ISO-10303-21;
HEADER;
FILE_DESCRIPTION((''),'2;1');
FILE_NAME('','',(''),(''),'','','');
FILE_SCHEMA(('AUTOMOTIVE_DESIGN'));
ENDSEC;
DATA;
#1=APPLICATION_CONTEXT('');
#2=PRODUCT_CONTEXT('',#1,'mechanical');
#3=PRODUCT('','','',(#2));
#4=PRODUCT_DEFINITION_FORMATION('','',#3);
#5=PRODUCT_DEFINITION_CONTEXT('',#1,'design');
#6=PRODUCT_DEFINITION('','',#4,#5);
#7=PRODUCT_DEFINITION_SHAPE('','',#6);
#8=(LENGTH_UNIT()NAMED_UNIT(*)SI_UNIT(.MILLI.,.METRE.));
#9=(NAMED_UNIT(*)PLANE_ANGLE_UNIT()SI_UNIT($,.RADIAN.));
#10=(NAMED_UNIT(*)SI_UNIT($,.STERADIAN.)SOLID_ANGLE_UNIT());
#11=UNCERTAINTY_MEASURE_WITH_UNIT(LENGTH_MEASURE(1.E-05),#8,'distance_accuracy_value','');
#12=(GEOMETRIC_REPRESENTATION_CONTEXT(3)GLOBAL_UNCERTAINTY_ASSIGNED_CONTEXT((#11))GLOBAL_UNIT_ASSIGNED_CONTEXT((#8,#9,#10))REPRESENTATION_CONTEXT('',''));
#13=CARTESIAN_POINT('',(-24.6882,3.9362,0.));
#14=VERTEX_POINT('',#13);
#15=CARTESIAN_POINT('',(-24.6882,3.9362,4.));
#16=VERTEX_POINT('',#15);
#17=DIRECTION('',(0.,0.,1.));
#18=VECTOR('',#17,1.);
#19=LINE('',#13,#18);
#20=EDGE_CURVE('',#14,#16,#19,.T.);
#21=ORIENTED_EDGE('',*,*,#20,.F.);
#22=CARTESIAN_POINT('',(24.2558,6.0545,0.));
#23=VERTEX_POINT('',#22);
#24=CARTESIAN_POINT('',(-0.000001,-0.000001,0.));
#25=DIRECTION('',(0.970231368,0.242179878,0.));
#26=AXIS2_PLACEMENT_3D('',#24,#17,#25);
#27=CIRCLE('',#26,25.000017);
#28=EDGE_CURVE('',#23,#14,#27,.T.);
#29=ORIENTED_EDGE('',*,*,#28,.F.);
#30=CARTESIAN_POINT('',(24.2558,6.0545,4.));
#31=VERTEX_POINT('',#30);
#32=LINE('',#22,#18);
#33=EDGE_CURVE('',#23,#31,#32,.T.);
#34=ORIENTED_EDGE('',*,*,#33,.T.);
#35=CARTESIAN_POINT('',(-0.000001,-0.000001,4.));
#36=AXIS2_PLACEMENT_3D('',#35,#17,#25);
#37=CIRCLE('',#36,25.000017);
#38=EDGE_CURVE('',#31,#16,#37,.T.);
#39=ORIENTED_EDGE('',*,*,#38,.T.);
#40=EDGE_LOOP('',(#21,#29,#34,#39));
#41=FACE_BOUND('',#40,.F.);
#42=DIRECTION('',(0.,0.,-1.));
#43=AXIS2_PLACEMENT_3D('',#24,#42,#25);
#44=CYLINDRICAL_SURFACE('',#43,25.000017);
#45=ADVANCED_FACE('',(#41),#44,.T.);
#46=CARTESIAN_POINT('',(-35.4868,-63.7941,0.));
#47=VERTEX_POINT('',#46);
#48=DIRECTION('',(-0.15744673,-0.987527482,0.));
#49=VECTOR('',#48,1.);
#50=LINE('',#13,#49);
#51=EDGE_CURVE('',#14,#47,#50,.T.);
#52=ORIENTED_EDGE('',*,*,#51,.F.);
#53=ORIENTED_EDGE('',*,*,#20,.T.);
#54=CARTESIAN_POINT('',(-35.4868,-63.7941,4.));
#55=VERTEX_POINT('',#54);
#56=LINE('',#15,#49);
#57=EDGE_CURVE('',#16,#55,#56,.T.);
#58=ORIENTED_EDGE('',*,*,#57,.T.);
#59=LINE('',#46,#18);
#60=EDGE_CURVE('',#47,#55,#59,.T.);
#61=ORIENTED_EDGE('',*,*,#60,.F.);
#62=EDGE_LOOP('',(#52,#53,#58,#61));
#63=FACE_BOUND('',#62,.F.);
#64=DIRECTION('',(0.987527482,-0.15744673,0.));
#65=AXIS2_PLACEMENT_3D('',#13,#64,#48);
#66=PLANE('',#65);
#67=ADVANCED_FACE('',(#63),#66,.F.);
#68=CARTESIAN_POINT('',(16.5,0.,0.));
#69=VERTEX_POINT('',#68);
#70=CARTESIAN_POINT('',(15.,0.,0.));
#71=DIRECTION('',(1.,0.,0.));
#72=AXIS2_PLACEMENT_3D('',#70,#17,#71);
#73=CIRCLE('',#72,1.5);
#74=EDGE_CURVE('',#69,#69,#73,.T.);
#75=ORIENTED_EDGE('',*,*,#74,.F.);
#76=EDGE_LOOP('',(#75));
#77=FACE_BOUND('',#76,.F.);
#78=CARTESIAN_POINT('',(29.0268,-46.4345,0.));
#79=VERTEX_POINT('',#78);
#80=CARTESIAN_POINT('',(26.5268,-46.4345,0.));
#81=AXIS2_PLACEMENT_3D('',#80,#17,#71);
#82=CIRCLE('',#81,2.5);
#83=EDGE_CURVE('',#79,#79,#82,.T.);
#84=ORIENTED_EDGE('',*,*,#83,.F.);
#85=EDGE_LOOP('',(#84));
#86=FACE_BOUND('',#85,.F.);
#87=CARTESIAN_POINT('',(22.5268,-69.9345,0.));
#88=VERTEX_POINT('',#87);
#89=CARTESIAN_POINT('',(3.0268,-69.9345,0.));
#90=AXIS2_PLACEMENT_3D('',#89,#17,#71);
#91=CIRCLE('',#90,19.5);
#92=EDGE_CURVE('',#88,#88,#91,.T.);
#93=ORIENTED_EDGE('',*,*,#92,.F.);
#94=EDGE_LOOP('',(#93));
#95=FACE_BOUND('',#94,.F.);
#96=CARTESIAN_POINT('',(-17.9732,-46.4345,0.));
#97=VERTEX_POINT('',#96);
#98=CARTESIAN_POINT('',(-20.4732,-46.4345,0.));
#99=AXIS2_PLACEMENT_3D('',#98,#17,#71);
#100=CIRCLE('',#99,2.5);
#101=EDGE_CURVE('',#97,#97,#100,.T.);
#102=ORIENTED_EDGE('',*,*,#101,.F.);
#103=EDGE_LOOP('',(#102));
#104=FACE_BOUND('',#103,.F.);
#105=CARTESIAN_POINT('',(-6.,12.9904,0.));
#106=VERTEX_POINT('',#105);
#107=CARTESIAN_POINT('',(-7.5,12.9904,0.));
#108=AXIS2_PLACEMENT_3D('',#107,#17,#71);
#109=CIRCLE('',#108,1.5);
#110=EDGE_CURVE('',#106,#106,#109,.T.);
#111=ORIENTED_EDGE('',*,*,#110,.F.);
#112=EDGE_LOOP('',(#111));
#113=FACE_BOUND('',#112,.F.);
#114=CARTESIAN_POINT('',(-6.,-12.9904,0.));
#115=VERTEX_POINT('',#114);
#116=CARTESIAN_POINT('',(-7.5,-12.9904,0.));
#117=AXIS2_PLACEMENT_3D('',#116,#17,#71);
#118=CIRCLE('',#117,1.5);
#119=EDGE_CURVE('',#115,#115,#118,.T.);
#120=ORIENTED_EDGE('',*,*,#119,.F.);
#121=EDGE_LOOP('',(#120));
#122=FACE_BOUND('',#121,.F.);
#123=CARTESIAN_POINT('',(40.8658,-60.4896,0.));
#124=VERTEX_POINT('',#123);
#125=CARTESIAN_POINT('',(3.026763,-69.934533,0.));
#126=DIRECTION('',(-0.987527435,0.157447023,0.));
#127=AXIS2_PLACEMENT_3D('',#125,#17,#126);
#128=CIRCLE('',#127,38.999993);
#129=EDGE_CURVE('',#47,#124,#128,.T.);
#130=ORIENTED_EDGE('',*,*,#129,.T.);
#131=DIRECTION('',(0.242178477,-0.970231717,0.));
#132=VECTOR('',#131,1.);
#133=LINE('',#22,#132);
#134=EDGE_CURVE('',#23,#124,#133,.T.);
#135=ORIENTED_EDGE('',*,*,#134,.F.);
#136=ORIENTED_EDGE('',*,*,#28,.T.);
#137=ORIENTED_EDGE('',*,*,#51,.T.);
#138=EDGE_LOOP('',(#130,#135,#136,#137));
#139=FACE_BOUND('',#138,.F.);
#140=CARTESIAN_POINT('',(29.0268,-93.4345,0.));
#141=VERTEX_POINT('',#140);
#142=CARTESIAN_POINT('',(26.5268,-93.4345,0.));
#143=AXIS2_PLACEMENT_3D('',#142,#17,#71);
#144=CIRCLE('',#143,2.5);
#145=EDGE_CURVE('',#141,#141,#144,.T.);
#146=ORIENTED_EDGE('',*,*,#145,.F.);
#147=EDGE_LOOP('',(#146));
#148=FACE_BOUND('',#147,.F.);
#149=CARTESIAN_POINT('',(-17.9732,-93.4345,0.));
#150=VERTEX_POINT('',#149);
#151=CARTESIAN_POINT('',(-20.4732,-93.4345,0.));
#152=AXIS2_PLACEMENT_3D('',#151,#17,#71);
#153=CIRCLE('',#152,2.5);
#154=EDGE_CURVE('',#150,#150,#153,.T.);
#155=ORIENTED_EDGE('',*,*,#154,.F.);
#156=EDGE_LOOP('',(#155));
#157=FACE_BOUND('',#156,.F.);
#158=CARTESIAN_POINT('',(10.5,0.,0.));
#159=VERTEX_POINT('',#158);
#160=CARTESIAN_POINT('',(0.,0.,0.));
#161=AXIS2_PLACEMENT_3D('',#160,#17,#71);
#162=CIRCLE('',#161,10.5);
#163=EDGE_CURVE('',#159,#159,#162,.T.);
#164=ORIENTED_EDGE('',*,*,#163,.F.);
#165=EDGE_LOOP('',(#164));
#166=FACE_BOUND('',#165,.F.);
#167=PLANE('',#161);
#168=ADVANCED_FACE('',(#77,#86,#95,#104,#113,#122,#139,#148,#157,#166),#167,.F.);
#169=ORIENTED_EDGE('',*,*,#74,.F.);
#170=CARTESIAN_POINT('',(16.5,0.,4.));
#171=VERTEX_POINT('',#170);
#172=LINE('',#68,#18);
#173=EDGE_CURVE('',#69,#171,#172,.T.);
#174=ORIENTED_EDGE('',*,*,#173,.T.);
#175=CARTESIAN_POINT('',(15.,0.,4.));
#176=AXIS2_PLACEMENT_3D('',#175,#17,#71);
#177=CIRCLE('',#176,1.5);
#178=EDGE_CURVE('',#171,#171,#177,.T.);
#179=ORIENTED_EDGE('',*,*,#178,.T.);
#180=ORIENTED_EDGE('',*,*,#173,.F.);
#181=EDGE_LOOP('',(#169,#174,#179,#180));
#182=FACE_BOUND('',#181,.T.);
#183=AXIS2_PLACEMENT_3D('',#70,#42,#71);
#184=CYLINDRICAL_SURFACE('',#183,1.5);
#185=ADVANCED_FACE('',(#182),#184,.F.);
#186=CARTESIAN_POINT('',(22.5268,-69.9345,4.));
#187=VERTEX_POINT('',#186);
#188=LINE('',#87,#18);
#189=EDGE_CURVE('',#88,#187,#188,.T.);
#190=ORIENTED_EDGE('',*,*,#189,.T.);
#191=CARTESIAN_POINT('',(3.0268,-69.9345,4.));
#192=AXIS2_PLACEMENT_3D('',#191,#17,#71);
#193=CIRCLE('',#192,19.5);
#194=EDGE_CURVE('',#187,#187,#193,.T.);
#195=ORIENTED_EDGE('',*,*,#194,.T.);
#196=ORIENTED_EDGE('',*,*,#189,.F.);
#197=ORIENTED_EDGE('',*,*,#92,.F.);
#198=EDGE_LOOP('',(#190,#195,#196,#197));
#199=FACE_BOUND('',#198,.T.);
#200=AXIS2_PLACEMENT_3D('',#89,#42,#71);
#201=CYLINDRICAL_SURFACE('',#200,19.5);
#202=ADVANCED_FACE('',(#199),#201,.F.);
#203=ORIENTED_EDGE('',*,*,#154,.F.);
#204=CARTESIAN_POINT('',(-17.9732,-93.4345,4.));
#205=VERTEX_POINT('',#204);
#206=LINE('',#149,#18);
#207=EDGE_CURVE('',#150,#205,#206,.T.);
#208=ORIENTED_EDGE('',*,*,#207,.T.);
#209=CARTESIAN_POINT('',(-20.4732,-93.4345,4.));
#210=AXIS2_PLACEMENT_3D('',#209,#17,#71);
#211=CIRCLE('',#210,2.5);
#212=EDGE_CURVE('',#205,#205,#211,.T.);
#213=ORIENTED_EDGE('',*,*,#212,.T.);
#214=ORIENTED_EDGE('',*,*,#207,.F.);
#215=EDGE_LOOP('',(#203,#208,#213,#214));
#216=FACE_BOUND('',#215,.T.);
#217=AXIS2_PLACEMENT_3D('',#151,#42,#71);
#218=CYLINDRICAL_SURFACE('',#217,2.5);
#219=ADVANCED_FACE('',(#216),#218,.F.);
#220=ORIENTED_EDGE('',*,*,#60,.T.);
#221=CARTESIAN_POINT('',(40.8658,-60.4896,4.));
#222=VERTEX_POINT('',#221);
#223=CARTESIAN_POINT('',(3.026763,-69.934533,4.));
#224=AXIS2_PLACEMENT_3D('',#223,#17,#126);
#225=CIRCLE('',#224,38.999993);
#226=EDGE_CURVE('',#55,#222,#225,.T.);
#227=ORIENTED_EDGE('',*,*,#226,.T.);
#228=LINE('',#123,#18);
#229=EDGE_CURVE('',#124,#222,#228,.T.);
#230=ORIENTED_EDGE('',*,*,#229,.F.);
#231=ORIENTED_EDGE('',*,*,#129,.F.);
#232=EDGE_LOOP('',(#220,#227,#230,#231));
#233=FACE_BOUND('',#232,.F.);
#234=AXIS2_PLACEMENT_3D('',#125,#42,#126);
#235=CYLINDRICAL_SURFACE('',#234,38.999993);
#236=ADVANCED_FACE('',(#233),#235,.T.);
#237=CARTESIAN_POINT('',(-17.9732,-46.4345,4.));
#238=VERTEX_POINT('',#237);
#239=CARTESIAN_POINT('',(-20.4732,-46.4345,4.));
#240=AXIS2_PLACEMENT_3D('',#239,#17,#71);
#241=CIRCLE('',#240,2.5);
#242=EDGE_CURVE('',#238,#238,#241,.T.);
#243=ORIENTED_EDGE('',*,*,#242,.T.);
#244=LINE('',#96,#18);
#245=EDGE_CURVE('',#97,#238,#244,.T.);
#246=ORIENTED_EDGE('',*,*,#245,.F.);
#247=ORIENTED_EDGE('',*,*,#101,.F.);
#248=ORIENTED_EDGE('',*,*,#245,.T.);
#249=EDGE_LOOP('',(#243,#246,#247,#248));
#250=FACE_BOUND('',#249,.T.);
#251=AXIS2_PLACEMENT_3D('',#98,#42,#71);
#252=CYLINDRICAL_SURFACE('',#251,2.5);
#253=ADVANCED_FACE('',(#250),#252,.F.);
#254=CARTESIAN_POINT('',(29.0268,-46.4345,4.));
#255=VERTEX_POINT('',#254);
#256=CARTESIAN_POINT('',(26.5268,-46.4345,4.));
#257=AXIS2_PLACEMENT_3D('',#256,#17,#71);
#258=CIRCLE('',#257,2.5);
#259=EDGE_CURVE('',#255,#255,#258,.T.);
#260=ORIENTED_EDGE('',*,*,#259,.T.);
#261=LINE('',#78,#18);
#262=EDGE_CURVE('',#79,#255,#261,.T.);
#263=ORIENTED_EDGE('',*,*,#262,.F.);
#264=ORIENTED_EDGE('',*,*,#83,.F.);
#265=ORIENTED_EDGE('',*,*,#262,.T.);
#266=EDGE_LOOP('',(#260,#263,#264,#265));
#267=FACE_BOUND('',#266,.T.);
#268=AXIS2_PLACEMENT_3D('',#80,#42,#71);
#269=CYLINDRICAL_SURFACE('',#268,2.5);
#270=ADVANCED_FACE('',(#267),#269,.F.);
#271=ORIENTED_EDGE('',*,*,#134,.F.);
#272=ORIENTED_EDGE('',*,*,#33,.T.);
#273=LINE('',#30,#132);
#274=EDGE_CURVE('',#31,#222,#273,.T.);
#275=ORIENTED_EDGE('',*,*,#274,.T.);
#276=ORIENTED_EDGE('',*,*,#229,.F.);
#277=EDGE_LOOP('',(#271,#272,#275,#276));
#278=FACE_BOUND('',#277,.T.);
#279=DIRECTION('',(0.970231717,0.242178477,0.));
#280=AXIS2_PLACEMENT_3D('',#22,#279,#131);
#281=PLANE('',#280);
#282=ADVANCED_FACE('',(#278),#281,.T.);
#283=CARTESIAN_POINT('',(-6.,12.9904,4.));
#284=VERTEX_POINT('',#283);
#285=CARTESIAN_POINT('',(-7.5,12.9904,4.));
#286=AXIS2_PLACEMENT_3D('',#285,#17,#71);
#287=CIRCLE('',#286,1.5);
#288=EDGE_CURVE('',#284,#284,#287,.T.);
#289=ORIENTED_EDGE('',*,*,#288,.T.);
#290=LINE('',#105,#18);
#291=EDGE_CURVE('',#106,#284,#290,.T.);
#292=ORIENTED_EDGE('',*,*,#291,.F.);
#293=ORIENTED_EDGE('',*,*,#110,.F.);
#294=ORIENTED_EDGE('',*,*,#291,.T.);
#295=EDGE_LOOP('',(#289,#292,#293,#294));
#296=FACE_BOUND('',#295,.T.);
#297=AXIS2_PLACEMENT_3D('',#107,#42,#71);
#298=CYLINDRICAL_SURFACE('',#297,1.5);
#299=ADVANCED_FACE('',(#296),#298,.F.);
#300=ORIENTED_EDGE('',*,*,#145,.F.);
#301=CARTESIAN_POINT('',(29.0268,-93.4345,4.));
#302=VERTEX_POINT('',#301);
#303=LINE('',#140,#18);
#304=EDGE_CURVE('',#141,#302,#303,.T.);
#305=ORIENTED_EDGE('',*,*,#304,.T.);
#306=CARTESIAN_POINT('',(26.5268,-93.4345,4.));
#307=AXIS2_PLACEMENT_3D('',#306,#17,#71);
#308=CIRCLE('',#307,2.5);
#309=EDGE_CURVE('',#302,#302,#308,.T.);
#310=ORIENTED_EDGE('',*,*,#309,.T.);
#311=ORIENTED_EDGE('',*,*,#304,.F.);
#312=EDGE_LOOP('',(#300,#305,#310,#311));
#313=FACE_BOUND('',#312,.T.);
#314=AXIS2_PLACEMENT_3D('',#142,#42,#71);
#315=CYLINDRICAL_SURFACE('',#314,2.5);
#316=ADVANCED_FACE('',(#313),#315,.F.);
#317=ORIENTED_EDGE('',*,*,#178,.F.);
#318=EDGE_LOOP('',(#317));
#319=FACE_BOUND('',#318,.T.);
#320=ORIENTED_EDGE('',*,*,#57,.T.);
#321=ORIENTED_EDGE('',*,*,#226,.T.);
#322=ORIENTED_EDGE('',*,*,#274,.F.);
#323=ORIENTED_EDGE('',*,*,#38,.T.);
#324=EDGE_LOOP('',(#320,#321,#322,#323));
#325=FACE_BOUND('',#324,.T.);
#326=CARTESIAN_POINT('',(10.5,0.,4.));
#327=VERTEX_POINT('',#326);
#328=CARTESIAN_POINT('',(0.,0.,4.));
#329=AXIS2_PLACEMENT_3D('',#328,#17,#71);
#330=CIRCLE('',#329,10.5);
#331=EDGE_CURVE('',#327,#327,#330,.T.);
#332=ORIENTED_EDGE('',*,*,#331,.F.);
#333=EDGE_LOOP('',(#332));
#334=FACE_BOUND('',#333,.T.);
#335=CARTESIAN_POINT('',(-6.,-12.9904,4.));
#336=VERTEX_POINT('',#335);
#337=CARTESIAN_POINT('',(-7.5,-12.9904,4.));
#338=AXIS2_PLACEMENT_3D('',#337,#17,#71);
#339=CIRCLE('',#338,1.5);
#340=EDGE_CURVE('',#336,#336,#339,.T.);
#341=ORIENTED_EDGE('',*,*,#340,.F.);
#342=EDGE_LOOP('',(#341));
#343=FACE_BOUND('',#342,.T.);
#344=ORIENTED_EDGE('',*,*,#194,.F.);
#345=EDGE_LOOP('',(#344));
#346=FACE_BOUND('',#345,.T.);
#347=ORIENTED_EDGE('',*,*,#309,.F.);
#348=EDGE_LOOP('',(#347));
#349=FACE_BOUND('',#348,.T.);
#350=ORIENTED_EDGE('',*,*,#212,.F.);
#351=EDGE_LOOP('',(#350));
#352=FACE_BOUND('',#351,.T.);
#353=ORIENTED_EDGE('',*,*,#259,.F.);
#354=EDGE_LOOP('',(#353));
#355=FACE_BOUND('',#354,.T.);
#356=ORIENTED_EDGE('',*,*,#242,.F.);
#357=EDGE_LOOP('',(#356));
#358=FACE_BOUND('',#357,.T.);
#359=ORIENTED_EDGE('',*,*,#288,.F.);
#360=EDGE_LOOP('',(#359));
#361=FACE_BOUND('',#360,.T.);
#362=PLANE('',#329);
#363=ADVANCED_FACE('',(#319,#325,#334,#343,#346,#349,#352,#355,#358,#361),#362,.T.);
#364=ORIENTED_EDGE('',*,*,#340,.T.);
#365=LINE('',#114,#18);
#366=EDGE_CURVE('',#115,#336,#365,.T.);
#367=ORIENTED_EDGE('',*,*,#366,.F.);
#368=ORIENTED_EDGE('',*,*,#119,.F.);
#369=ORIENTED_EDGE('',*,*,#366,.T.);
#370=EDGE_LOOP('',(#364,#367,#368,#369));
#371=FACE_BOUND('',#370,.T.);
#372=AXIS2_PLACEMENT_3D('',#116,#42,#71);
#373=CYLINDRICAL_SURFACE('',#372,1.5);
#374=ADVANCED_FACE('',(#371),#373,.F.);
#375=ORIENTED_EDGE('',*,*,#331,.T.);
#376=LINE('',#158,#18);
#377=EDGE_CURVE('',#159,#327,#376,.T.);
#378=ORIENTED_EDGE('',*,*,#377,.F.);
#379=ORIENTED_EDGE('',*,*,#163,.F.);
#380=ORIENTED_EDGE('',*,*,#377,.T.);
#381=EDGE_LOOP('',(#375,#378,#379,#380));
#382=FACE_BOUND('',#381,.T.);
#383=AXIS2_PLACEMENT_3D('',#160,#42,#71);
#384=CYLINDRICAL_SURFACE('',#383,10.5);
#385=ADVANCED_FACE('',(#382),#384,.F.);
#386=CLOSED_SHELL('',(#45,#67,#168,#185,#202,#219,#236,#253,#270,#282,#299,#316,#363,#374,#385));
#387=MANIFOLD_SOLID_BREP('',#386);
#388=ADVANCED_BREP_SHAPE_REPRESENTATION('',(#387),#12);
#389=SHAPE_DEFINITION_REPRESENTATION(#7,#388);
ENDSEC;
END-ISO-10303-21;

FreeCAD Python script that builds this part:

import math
import FreeCAD as App
import Part
import Sketcher
from FreeCAD import Vector

doc = App.newDocument("Part")
body = doc.addObject("PartDesign::Body", "Body")

sketch1 = body.newObject("Sketcher::SketchObject", "Sketch")
sketch1.AttachmentSupport = (doc.getObject("XY_Plane"), [""])
sketch1.MapMode = "FlatFace"
sketch1.addGeometry([
    Part.LineSegment(Vector(40.9, -60.5, 0), Vector(24.3, 6.1, 0)),
    Part.ArcOfCircle(Part.Circle(Vector(0, 0, 0), Vector(0, 0, 1), 25), math.radians(14), math.radians(171)),
    Part.LineSegment(Vector(-24.7, 3.9, 0), Vector(-35.5, -63.8, 0)),
    Part.ArcOfCircle(Part.Circle(Vector(3, -69.9, 0), Vector(0, 0, 1), 39), math.radians(171), math.radians(374)),
    Part.Circle(Vector(-20.5, -93.4, 0), Vector(0, 0, 1), 2.5),
    Part.Circle(Vector(-20.5, -46.4, 0), Vector(0, 0, 1), 2.5),
    Part.Circle(Vector(26.5, -93.4, 0), Vector(0, 0, 1), 2.5),
    Part.Circle(Vector(3, -69.9, 0), Vector(0, 0, 1), 19.5),
    Part.Circle(Vector(26.5, -46.4, 0), Vector(0, 0, 1), 2.5),
    Part.Circle(Vector(-7.5, -13, 0), Vector(0, 0, 1), 1.5),
    Part.Circle(Vector(0, 0, 0), Vector(0, 0, 1), 10.5),
    Part.Circle(Vector(-7.5, 13, 0), Vector(0, 0, 1), 1.5),
    Part.Circle(Vector(15, 0, 0), Vector(0, 0, 1), 1.5),
], False)
sketch1.addConstraint([
    Sketcher.Constraint("Tangent", 0, 2, 1, 1),
    Sketcher.Constraint("Tangent", 1, 2, 2, 1),
    Sketcher.Constraint("Tangent", 2, 2, 3, 1),
    Sketcher.Constraint("Tangent", 3, 2, 0, 1),
    Sketcher.Constraint("Coincident", 1, 3, -1, 1),
    Sketcher.Constraint("Coincident", 10, 3, -1, 1),
    Sketcher.Constraint("Coincident", 7, 3, 3, 3),
    Sketcher.Constraint("Equal", 4, 5),
    Sketcher.Constraint("Equal", 5, 6),
    Sketcher.Constraint("Equal", 6, 8),
    Sketcher.Constraint("Equal", 9, 11),
    Sketcher.Constraint("Equal", 11, 12),
    Sketcher.Constraint("Symmetric", 9, 3, 11, 3, -1),
    Sketcher.Constraint("PointOnObject", 12, 3, -1),
    Sketcher.Constraint("Horizontal", 4, 3, 6, 3),
    Sketcher.Constraint("Horizontal", 5, 3, 8, 3),
    Sketcher.Constraint("Vertical", 4, 3, 5, 3),
    Sketcher.Constraint("Vertical", 6, 3, 8, 3),
    Sketcher.Constraint("Diameter", 7, 39.0),
    Sketcher.Constraint("Diameter", 10, 21.0),
    Sketcher.Constraint("Radius", 1, 25.0),
    Sketcher.Constraint("Radius", 3, 39.0),
    Sketcher.Constraint("Diameter", 4, 5.0),
    Sketcher.Constraint("Diameter", 9, 3.0),
    Sketcher.Constraint("DistanceX", -1, 1, 12, 3, 15.0),
    Sketcher.Constraint("DistanceY", 4, 3, 5, 3, 47.0),
    Sketcher.Constraint("DistanceX", 4, 3, 6, 3, 47.0),
    Sketcher.Constraint("DistanceX", 9, 3, -1, 1, 7.5),
    Sketcher.Constraint("DistanceX", 4, 3, 3, 3, 23.5),
    Sketcher.Constraint("DistanceY", 4, 3, 3, 3, 23.5),
    Sketcher.Constraint("DistanceY", 2, 2, -1, 1, 63.794),
    Sketcher.Constraint("DistanceY", 5, 3, 9, 3, 33.444),
    Sketcher.Constraint("DistanceY", 5, 3, 11, 3, 59.425),
])
pad1 = body.newObject("PartDesign::Pad", "Pad")
pad1.Profile = sketch1
pad1.Length = 4

doc.recompute()
